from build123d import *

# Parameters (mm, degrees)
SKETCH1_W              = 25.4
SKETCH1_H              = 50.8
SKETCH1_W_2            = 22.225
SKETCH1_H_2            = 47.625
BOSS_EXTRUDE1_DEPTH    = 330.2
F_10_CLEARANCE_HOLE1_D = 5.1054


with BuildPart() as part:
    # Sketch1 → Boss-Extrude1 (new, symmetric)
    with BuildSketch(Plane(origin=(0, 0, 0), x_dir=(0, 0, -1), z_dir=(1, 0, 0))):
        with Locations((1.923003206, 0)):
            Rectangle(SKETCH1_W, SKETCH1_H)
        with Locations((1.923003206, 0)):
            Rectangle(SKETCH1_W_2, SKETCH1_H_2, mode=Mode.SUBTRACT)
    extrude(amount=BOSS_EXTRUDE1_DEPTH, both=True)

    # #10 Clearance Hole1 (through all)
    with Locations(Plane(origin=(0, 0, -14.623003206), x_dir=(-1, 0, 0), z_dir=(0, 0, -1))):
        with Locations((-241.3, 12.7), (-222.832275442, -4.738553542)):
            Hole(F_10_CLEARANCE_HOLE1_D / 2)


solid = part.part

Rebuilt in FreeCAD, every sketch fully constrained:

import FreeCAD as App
import Part
import Sketcher
from FreeCAD import Vector
Q = App.Units.Quantity

doc = App.newDocument("Part")
body = doc.addObject("PartDesign::Body", "Body")

# Sketch on YZ plane
sketch1 = body.newObject("Sketcher::SketchObject", "Sketch")
sketch1.AttachmentSupport = (doc.getObject("YZ_Plane"), [""])
sketch1.MapMode = "FlatFace"
sketch1.addGeometry([
    Part.LineSegment(Vector(25.4, 10.776997, 0), Vector(-25.4, 10.776997, 0)),  # 0
    Part.LineSegment(Vector(-25.4, 10.776997, 0), Vector(-25.4, -14.623003, 0)),  # 1
    Part.LineSegment(Vector(-25.4, -14.623003, 0), Vector(25.4, -14.623003, 0)),  # 2
    Part.LineSegment(Vector(25.4, -14.623003, 0), Vector(25.4, 10.776997, 0)),  # 3
    Part.LineSegment(Vector(-23.8125, -13.035503, 0), Vector(-23.8125, 9.189497, 0)),  # 4
    Part.LineSegment(Vector(-23.8125, 9.189497, 0), Vector(23.8125, 9.189497, 0)),  # 5
    Part.LineSegment(Vector(23.8125, 9.189497, 0), Vector(23.8125, -13.035503, 0)),  # 6
    Part.LineSegment(Vector(23.8125, -13.035503, 0), Vector(-23.8125, -13.035503, 0)),  # 7
], False)
sketch1.addConstraint([
    Sketcher.Constraint("Coincident", 0, 2, 1, 1),
    Sketcher.Constraint("Coincident", 1, 2, 2, 1),
    Sketcher.Constraint("Coincident", 2, 2, 3, 1),
    Sketcher.Constraint("Coincident", 3, 2, 0, 1),
    Sketcher.Constraint("Coincident", 4, 2, 5, 1),
    Sketcher.Constraint("Coincident", 5, 2, 6, 1),
    Sketcher.Constraint("Coincident", 6, 2, 7, 1),
    Sketcher.Constraint("Coincident", 7, 2, 4, 1),
    Sketcher.Constraint("Horizontal", 0),
    Sketcher.Constraint("Vertical", 1),
    Sketcher.Constraint("Horizontal", 2),
    Sketcher.Constraint("Vertical", 3),
    Sketcher.Constraint("Vertical", 4),
    Sketcher.Constraint("Horizontal", 5),
    Sketcher.Constraint("Vertical", 6),
    Sketcher.Constraint("Horizontal", 7),
    Sketcher.Constraint("DistanceX", 0, 2, 0, 1, Q("2 in")),
    Sketcher.Constraint("DistanceY", 1, 2, 1, 1, Q("1 in")),
    Sketcher.Constraint("DistanceX", 0, 2, -1, 1, Q("1 in")),
    Sketcher.Constraint("DistanceX", 5, 1, 5, 2, Q("1.875 in")),
    Sketcher.Constraint("DistanceY", 4, 1, 4, 2, Q("0.875 in")),
    Sketcher.Constraint("DistanceX", 4, 2, -1, 1, Q("0.9375 in")),
    Sketcher.Constraint("DistanceY", 4, 2, 0, 2, Q("0.0625 in")),
    Sketcher.Constraint("DistanceY", -1, 1, 0, 2, 10.776997),
])
pad1 = body.newObject("PartDesign::Pad", "Pad")
pad1.Profile = sketch1
pad1.Length = Q("26 in")
pad1.Midplane = True

# Sketch on XY plane
sketch2 = body.newObject("Sketcher::SketchObject", "Sketch001")
sketch2.AttachmentSupport = (doc.getObject("XY_Plane"), [""])
sketch2.MapMode = "FlatFace"
sketch2.AttachmentOffset = App.Placement(Vector(0, 0, -14.623003), App.Rotation())
sketch2.addGeometry([
    Part.Circle(Vector(241.3, 12.7, 0), Vector(0, 0, 1), 2.5527),
    Part.Circle(Vector(222.832275, -4.738554, 0), Vector(0, 0, 1), 2.5527),
], False)
sketch2.addConstraint([
    Sketcher.Constraint("Equal", 0, 1),
    Sketcher.Constraint("Diameter", 0, Q("0.201 in")),
    Sketcher.Constraint("DistanceX", -1, 1, 0, 3, Q("9.5 in")),
    Sketcher.Constraint("DistanceY", -1, 1, 0, 3, Q("0.5 in")),
    Sketcher.Constraint("DistanceX", -1, 1, 1, 3, 222.832275),
    Sketcher.Constraint("DistanceY", 1, 3, -1, 1, 4.738554),
])
doc.recompute()
hole = body.newObject("PartDesign::Hole", "Hole")
hole.Profile = sketch2
hole.ThreadType = "None"
hole.Diameter = Q("0.201 in")
hole.DepthType = "ThroughAll"
hole.Reversed = True

doc.recompute()
